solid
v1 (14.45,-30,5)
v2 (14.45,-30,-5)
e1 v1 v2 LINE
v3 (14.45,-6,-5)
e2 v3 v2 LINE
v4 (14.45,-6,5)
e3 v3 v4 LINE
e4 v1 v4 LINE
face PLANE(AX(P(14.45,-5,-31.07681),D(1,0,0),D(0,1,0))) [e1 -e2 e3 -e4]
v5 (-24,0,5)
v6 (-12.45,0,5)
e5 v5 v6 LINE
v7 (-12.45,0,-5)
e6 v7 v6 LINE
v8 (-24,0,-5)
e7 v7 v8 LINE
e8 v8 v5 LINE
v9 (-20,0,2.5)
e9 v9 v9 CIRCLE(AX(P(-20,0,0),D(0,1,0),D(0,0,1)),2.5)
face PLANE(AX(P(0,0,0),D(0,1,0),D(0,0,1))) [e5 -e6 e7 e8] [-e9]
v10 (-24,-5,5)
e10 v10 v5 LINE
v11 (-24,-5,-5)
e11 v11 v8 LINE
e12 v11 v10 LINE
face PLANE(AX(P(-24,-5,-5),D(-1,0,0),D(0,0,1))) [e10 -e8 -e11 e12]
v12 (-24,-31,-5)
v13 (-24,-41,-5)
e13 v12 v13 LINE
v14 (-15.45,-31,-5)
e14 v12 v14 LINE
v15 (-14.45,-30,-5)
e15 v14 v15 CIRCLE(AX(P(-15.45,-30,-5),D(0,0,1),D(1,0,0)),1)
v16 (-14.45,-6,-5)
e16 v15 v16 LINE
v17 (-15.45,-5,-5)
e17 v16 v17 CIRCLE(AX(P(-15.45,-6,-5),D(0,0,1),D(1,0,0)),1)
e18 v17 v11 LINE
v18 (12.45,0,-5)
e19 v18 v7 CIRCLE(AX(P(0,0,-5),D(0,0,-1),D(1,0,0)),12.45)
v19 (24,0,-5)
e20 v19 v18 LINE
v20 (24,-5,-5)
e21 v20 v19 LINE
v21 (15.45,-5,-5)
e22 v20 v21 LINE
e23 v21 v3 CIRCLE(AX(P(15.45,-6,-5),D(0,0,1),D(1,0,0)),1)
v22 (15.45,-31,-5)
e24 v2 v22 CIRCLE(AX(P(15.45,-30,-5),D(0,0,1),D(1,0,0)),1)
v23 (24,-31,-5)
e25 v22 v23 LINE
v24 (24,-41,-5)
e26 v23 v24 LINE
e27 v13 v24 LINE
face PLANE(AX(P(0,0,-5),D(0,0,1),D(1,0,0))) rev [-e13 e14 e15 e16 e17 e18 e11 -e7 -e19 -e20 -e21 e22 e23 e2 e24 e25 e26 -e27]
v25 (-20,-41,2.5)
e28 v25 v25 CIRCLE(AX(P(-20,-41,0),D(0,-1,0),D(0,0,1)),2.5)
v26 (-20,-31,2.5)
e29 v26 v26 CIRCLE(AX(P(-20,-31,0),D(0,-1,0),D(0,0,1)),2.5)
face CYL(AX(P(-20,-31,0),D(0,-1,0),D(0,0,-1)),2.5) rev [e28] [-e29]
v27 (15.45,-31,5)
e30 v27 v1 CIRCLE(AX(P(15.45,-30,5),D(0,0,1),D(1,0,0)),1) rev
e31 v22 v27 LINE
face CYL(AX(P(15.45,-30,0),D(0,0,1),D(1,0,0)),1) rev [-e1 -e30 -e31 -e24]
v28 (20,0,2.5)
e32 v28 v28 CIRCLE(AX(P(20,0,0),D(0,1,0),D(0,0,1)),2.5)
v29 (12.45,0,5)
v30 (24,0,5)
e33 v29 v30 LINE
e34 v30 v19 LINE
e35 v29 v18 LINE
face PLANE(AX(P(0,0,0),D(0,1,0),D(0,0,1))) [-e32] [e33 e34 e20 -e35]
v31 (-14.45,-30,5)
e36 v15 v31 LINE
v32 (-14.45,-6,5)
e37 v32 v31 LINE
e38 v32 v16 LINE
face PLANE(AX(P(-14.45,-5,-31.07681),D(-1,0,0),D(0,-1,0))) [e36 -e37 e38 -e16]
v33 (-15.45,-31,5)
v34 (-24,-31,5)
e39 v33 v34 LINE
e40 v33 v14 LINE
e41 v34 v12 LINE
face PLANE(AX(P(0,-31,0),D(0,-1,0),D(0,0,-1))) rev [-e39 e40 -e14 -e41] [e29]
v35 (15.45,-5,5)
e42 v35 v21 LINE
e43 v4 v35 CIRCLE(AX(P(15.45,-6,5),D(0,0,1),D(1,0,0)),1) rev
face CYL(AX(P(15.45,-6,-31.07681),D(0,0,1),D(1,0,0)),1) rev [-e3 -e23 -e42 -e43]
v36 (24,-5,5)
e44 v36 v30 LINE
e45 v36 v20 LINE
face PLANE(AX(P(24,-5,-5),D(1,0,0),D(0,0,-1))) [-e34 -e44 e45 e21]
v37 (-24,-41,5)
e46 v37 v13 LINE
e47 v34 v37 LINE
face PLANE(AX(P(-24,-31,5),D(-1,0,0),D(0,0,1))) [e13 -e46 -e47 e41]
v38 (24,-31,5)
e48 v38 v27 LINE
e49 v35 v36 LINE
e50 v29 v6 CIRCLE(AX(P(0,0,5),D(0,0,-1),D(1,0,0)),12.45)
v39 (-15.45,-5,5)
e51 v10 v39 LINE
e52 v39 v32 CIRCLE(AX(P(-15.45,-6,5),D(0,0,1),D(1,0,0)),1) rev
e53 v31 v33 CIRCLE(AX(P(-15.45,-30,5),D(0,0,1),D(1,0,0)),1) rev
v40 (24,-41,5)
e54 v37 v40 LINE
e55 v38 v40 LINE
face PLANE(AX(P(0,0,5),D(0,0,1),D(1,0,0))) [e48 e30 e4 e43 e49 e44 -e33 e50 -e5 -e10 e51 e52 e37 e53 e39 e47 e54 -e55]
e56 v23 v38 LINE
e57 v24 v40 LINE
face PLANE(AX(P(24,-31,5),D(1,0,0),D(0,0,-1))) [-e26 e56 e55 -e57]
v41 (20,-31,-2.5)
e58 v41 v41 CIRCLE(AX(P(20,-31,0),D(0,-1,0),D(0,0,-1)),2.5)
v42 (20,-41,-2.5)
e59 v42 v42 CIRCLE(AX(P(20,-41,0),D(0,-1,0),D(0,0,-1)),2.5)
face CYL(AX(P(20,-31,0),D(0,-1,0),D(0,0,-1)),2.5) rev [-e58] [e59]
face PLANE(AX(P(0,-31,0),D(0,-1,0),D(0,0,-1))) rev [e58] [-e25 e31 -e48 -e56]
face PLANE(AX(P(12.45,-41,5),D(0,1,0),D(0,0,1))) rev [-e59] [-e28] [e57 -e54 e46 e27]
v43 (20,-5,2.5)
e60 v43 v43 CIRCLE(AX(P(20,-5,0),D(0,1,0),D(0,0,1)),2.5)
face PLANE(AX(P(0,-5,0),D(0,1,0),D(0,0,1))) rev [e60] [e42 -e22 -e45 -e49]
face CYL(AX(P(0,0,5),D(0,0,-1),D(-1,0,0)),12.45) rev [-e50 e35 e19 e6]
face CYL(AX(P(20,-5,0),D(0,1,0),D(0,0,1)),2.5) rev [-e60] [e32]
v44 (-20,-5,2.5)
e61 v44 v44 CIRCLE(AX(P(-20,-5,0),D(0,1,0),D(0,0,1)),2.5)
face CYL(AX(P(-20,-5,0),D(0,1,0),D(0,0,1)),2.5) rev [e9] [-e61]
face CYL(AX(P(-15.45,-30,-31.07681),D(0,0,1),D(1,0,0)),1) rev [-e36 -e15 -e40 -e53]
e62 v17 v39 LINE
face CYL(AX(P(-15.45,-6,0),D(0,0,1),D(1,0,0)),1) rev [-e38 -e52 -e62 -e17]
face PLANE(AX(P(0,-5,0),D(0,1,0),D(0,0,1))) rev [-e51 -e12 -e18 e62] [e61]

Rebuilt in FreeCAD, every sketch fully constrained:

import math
import FreeCAD as App
import Part
import Sketcher


def edges_at(feature, points):
    """Names of the edges that pass closest to the given points."""
    edges = feature.Shape.Edges
    near = lambda p: min(range(len(edges)), key=lambda i: edges[i].distToShape(Part.Vertex(*p))[0])
    return sorted({f"Edge{near(p) + 1}" for p in points})

doc = App.newDocument("Part")
body = doc.addObject("PartDesign::Body", "Body")

# Sketch on XY plane
sketch1 = body.newObject("Sketcher::SketchObject", "Sketch")
sketch1.AttachmentSupport = (doc.getObject("XY_Plane"), [""])
sketch1.MapMode = "FlatFace"
sketch1.addGeometry([
    Part.LineSegment(App.Vector(12, -41, 0), App.Vector(12, 0, 0)),
    Part.ArcOfCircle(Part.Circle(App.Vector(0, 0, 0), App.Vector(0, 0, 1), 12), math.radians(180), math.radians(360)),
    Part.LineSegment(App.Vector(-12, 0, 0), App.Vector(-12, -41, 0)),
    Part.LineSegment(App.Vector(-12, -41, 0), App.Vector(12, -41, 0)),
], False)
sketch1.addConstraint([
    Sketcher.Constraint("Tangent", 0, 2, 1, 2),
    Sketcher.Constraint("Tangent", 1, 1, 2, 1),
    Sketcher.Constraint("Coincident", 2, 2, 3, 1),
    Sketcher.Constraint("Coincident", 3, 2, 0, 1),
    Sketcher.Constraint("Vertical", 0),
    Sketcher.Constraint("Vertical", 2),
    Sketcher.Constraint("Horizontal", 3),
    Sketcher.Constraint("Coincident", 1, 3, -1, 1),
    Sketcher.Constraint("DistanceY", 0, 1, 0, 2, 41.0),
    Sketcher.Constraint("Radius", 1, 12.45),
])
pad1 = body.newObject("PartDesign::Pad", "Pad")
pad1.Profile = sketch1
pad1.Length = 10
pad1.Midplane = True

# Sketch on XZ plane
sketch2 = body.newObject("Sketcher::SketchObject", "Sketch001")
sketch2.AttachmentSupport = (doc.getObject("XZ_Plane"), [""])
sketch2.MapMode = "FlatFace"
sketch2.AttachmentOffset = App.Placement(App.Vector(0, 0, 41), App.Rotation())
sketch2.addGeometry([
    Part.LineSegment(App.Vector(-24, 5, 0), App.Vector(-24, -5, 0)),  # 0
    Part.LineSegment(App.Vector(-24, -5, 0), App.Vector(24, -5, 0)),  # 1
    Part.LineSegment(App.Vector(24, -5, 0), App.Vector(24, 5, 0)),  # 2
    Part.LineSegment(App.Vector(24, 5, 0), App.Vector(-24, 5, 0)),  # 3
    Part.Circle(App.Vector(-20, 0, 0), App.Vector(0, 0, 1), 2.5),  # 4
    Part.Circle(App.Vector(20, 0, 0), App.Vector(0, 0, 1), 2.5),  # 5
], False)
sketch2.addConstraint([
    Sketcher.Constraint("Coincident", 0, 2, 1, 1),
    Sketcher.Constraint("Coincident", 1, 2, 2, 1),
    Sketcher.Constraint("Coincident", 2, 2, 3, 1),
    Sketcher.Constraint("Coincident", 3, 2, 0, 1),
    Sketcher.Constraint("Vertical", 0),
    Sketcher.Constraint("Horizontal", 1),
    Sketcher.Constraint("Vertical", 2),
    Sketcher.Constraint("Horizontal", 3),
    Sketcher.Constraint("Equal", 4, 5),
    Sketcher.Constraint("Symmetric", 4, 3, 5, 3, -1, 1),
    Sketcher.Constraint("Symmetric", 0, 2, 2, 2, -1, 1),
    Sketcher.Constraint("PointOnObject", 4, 3, -1),
    Sketcher.Constraint("Diameter", 4, 5.0),
    Sketcher.Constraint("DistanceX", 1, 1, 1, 2, 48.0),
    Sketcher.Constraint("DistanceY", 0, 2, 0, 1, 10.0),
    Sketcher.Constraint("DistanceX", 4, 3, -1, 1, 20.0),
])
pad2 = body.newObject("PartDesign::Pad", "Pad001")
pad2.Profile = sketch2
pad2.Length = 10
pad2.Reversed = True

# Sketch on XZ plane
sketch3 = body.newObject("Sketcher::SketchObject", "Sketch002")
sketch3.AttachmentSupport = (doc.getObject("XZ_Plane"), [""])
sketch3.MapMode = "FlatFace"
sketch3.AttachmentOffset = App.Placement(App.Vector(0, 0, 5), App.Rotation())
sketch3.addGeometry([
    Part.LineSegment(App.Vector(-24, -5, 0), App.Vector(-24, 5, 0)),  # 0
    Part.LineSegment(App.Vector(-24, 5, 0), App.Vector(24, 5, 0)),  # 1
    Part.LineSegment(App.Vector(24, 5, 0), App.Vector(24, -5, 0)),  # 2
    Part.LineSegment(App.Vector(24, -5, 0), App.Vector(-24, -5, 0)),  # 3
    Part.Circle(App.Vector(-20, 0, 0), App.Vector(0, 0, 1), 2.5),  # 4
    Part.Circle(App.Vector(20, 0, 0), App.Vector(0, 0, 1), 2.5),  # 5
], False)
sketch3.addConstraint([
    Sketcher.Constraint("Coincident", 0, 2, 1, 1),
    Sketcher.Constraint("Coincident", 1, 2, 2, 1),
    Sketcher.Constraint("Coincident", 2, 2, 3, 1),
    Sketcher.Constraint("Coincident", 3, 2, 0, 1),
    Sketcher.Constraint("Vertical", 0),
    Sketcher.Constraint("Horizontal", 1),
    Sketcher.Constraint("Vertical", 2),
    Sketcher.Constraint("Horizontal", 3),
    Sketcher.Constraint("Equal", 4, 5),
    Sketcher.Constraint("Symmetric", 4, 3, 5, 3, -1, 1),
    Sketcher.Constraint("Symmetric", 0, 2, 2, 2, -1, 1),
    Sketcher.Constraint("PointOnObject", 4, 3, -1),
    Sketcher.Constraint("Diameter", 4, 5.0),
    Sketcher.Constraint("DistanceX", 1, 1, 1, 2, 48.0),
    Sketcher.Constraint("DistanceY", 0, 1, 0, 2, 10.0),
    Sketcher.Constraint("DistanceX", 4, 3, -1, 1, 20.0),
])
pad3 = body.newObject("PartDesign::Pad", "Pad002")
pad3.Profile = sketch3
pad3.Length = 5
pad3.Reversed = True

# Sketch on XY plane
sketch4 = body.newObject("Sketcher::SketchObject", "Sketch003")
sketch4.AttachmentSupport = (doc.getObject("XY_Plane"), [""])
sketch4.MapMode = "FlatFace"
sketch4.AttachmentOffset = App.Placement(App.Vector(0, 0, 5), App.Rotation())
sketch4.addGeometry([
    Part.LineSegment(App.Vector(-14.4, -5, 0), App.Vector(-14.4, -31, 0)),  # 0
    Part.LineSegment(App.Vector(-14.4, -31, 0), App.Vector(-12.4, -31, 0)),  # 1
    Part.LineSegment(App.Vector(-12.4, -31, 0), App.Vector(-12.4, -5, 0)),  # 2
    Part.LineSegment(App.Vector(-12.4, -5, 0), App.Vector(-14.4, -5, 0)),  # 3
    Part.LineSegment(App.Vector(12.4, -5, 0), App.Vector(12.4, -31, 0)),  # 4
    Part.LineSegment(App.Vector(12.4, -31, 0), App.Vector(14.4, -31, 0)),  # 5
    Part.LineSegment(App.Vector(14.4, -31, 0), App.Vector(14.4, -5, 0)),  # 6
    Part.LineSegment(App.Vector(14.4, -5, 0), App.Vector(12.4, -5, 0)),  # 7
], False)
sketch4.addConstraint([
    Sketcher.Constraint("Coincident", 0, 2, 1, 1),
    Sketcher.Constraint("Coincident", 1, 2, 2, 1),
    Sketcher.Constraint("Coincident", 2, 2, 3, 1),
    Sketcher.Constraint("Coincident", 3, 2, 0, 1),
    Sketcher.Constraint("Coincident", 4, 2, 5, 1),
    Sketcher.Constraint("Coincident", 5, 2, 6, 1),
    Sketcher.Constraint("Coincident", 6, 2, 7, 1),
    Sketcher.Constraint("Coincident", 7, 2, 4, 1),
    Sketcher.Constraint("Vertical", 0),
    Sketcher.Constraint("Horizontal", 1),
    Sketcher.Constraint("Vertical", 2),
    Sketcher.Constraint("Horizontal", 3),
    Sketcher.Constraint("Vertical", 4),
    Sketcher.Constraint("Horizontal", 5),
    Sketcher.Constraint("Vertical", 6),
    Sketcher.Constraint("Horizontal", 7),
    Sketcher.Constraint("Symmetric", 1, 2, 4, 2, -2),
    Sketcher.Constraint("Symmetric", 3, 2, 6, 2, -2),
    Sketcher.Constraint("DistanceX", 1, 1, 1, 2, 2.0),
    Sketcher.Constraint("DistanceY", 0, 2, 0, 1, 26.0),
    Sketcher.Constraint("DistanceY", 0, 2, -1, 1, 31.0),
    Sketcher.Constraint("DistanceX", 1, 2, 4, 2, 24.9),
])
pad4 = body.newObject("PartDesign::Pad", "Pad003")
pad4.Profile = sketch4
pad4.Length = 10
pad4.Reversed = True

# Sketch on XY plane
sketch5 = body.newObject("Sketcher::SketchObject", "Sketch004")
sketch5.AttachmentSupport = (doc.getObject("XY_Plane"), [""])
sketch5.MapMode = "FlatFace"
sketch5.AttachmentOffset = App.Placement(App.Vector(0, 0, 5), App.Rotation())
sketch5.addGeometry(Part.Circle(App.Vector(0, 0, 0), App.Vector(0, 0, 1), 12), False)
sketch5.addConstraint([
    Sketcher.Constraint("Coincident", 0, 3, -1, 1),
    Sketcher.Constraint("Diameter", 0, 24.9),
])
pocket1 = body.newObject("PartDesign::Pocket", "Pocket")
pocket1.Profile = sketch5
pocket1.Length = 16
doc.recompute()

fillet = body.newObject("PartDesign::Fillet", "Fillet")
fillet.Base = (pocket1, edges_at(pocket1, [(-14.45, -31, 0), (14.45, -31, 0)]))
fillet.Radius = 1
doc.recompute()

fillet2 = body.newObject("PartDesign::Fillet", "Fillet001")
fillet2.Base = (fillet, edges_at(fillet, [(-14.45, -5, 0), (14.45, -5, 0)]))
fillet2.Radius = 1

doc.recompute()
